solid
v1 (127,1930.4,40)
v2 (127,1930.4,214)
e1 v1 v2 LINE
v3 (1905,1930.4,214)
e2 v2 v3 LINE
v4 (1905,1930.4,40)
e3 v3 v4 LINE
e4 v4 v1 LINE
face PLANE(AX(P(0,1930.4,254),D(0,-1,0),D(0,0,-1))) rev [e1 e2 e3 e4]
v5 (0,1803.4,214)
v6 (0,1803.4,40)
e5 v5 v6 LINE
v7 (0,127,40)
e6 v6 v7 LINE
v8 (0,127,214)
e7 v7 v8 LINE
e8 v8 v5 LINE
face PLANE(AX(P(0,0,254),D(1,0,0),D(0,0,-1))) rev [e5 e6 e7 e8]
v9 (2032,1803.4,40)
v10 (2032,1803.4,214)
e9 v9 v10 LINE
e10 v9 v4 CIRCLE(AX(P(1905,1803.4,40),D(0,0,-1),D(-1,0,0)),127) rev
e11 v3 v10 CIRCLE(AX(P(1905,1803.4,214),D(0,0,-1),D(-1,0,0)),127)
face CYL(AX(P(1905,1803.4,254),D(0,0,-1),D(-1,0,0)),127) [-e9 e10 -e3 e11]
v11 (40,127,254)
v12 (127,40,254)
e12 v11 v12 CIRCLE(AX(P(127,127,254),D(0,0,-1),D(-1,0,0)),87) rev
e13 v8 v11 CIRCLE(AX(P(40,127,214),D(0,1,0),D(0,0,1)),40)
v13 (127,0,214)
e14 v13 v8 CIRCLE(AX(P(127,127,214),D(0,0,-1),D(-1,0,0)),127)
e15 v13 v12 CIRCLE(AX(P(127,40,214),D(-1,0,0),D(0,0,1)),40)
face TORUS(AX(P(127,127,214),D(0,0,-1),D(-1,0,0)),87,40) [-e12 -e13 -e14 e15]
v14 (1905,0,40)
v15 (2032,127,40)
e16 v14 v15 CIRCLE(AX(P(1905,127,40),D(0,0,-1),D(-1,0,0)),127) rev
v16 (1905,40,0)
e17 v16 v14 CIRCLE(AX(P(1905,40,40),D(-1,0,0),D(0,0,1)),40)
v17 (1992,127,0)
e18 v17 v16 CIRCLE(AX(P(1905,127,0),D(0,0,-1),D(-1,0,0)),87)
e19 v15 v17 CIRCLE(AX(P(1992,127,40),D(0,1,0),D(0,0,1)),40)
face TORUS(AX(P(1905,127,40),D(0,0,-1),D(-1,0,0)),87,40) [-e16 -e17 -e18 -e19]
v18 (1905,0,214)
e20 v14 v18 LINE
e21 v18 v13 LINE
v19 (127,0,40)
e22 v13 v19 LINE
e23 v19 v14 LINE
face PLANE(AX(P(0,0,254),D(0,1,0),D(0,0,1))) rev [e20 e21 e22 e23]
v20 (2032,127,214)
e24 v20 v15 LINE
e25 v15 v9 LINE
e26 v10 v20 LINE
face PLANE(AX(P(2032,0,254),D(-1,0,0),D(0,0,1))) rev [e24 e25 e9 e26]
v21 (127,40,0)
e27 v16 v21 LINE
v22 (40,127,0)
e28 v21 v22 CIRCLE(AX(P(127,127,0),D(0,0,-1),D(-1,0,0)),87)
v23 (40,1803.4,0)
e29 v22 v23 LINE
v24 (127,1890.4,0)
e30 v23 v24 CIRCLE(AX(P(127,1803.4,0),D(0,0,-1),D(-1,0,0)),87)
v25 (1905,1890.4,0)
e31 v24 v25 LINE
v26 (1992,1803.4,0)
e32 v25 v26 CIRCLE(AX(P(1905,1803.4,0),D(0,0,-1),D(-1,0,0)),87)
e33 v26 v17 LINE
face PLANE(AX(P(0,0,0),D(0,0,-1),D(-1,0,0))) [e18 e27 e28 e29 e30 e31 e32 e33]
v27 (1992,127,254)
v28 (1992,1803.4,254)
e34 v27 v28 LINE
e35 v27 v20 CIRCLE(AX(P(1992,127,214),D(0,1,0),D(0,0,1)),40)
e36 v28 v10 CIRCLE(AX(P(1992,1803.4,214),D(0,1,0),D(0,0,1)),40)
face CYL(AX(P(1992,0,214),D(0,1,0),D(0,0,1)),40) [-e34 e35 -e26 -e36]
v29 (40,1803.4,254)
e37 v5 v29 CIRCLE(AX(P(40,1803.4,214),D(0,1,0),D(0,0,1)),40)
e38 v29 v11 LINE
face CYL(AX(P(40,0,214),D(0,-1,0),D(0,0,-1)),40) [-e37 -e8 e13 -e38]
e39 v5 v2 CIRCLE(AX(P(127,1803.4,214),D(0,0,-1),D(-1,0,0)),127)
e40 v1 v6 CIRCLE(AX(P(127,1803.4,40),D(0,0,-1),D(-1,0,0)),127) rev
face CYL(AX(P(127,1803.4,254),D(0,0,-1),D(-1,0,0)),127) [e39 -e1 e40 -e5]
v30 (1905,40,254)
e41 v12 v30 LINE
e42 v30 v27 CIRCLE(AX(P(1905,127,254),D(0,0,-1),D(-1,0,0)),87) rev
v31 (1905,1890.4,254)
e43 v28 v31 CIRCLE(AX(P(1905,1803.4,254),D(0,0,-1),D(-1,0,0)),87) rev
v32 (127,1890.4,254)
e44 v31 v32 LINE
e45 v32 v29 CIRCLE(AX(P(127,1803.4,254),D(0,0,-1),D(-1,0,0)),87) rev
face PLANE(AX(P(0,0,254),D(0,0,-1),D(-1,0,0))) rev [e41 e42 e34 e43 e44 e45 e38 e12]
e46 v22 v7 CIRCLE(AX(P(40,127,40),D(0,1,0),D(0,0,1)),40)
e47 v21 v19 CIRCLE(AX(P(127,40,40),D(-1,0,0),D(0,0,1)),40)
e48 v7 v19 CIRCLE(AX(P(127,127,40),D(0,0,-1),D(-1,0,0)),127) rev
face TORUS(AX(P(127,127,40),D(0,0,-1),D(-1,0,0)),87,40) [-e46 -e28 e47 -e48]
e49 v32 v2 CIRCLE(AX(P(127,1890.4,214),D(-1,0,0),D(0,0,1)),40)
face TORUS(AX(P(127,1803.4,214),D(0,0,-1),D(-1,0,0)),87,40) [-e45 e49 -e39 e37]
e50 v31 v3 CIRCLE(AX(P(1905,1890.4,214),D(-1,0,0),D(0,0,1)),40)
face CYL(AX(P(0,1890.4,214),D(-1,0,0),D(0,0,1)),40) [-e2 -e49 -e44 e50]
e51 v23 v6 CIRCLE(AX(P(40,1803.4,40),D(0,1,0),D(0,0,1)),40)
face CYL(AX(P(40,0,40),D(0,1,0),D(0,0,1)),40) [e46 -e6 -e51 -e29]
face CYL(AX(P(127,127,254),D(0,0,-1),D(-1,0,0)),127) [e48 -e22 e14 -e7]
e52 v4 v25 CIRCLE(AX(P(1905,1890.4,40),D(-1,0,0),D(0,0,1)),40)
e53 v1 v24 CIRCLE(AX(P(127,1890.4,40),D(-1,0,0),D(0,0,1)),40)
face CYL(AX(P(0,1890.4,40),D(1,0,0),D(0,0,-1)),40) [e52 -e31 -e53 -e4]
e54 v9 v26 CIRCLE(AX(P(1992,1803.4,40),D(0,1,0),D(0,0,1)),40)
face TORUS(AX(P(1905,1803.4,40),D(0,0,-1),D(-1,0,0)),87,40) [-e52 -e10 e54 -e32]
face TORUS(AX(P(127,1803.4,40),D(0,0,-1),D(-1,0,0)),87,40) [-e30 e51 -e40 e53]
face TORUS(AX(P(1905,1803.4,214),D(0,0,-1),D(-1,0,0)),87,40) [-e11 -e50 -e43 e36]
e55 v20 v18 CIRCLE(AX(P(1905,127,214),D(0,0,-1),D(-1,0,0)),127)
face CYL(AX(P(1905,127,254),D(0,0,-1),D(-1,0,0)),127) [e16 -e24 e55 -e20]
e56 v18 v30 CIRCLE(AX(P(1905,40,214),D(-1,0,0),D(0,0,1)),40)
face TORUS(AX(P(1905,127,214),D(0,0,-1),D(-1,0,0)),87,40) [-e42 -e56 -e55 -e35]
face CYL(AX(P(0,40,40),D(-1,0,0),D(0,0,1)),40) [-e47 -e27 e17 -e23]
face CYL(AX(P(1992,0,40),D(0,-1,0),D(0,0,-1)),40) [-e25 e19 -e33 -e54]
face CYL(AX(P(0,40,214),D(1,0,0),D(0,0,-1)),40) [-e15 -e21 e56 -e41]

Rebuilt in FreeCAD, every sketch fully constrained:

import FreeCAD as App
import Part
import Sketcher
from FreeCAD import Vector
Q = App.Units.Quantity


def edges_at(feature, points):
    """Names of the edges that pass closest to the given points."""
    edges = feature.Shape.Edges
    near = lambda p: min(range(len(edges)), key=lambda i: edges[i].distToShape(Part.Vertex(*p))[0])
    return sorted({f"Edge{near(p) + 1}" for p in points})

doc = App.newDocument("Part")
body = doc.addObject("PartDesign::Body", "Body")

# Sketch on XY plane
sketch1 = body.newObject("Sketcher::SketchObject", "Sketch")
sketch1.AttachmentSupport = (doc.getObject("XY_Plane"), [""])
sketch1.MapMode = "FlatFace"
sketch1.addGeometry([
    Part.LineSegment(Vector(0, 1930, 0), Vector(0, 0, 0)),
    Part.LineSegment(Vector(0, 0, 0), Vector(2032, 0, 0)),
    Part.LineSegment(Vector(2032, 0, 0), Vector(2032, 1930, 0)),
    Part.LineSegment(Vector(2032, 1930, 0), Vector(0, 1930, 0)),
], False)
sketch1.addConstraint([
    Sketcher.Constraint("Coincident", 0, 2, 1, 1),
    Sketcher.Constraint("Coincident", 1, 2, 2, 1),
    Sketcher.Constraint("Coincident", 2, 2, 3, 1),
    Sketcher.Constraint("Coincident", 3, 2, 0, 1),
    Sketcher.Constraint("Vertical", 0),
    Sketcher.Constraint("Horizontal", 1),
    Sketcher.Constraint("Vertical", 2),
    Sketcher.Constraint("Horizontal", 3),
    Sketcher.Constraint("Coincident", 0, 2, -1, 1),
    Sketcher.Constraint("DistanceX", 1, 1, 1, 2, Q("80 in")),
    Sketcher.Constraint("DistanceY", 0, 2, 0, 1, Q("76 in")),
])
pad1 = body.newObject("PartDesign::Pad", "Pad")
pad1.Profile = sketch1
pad1.Length = Q("10 in")
doc.recompute()

fillet = body.newObject("PartDesign::Fillet", "Fillet")
fillet.Base = (pad1, edges_at(pad1, [
    (0, 1930.4, 127),
    (2032, 1930.4, 127),
    (2032, 0, 127),
    (0, 0, 127),
]))
fillet.Radius = Q("5 in")
doc.recompute()

fillet2 = body.newObject("PartDesign::Fillet", "Fillet001")
fillet2.Base = (fillet, edges_at(fillet, [
    (0, 965.2, 0),
    (0, 965.2, 254),
    (1016, 1930.4, 0),
    (2032, 965.2, 0),
    (1016, 0, 0),
    (1994.803, 1893.203, 0),
    (1994.803, 37.197, 0),
    (37.197, 37.197, 0),
    (37.197, 1893.203, 0),
    (1016, 1930.4, 254),
    (1016, 0, 254),
    (2032, 965.2, 254),
    (1994.803, 1893.203, 254),
    (1994.803, 37.197, 254),
    (37.197, 37.197, 254),
    (37.197, 1893.203, 254),
]))
fillet2.Radius = 40

doc.recompute()
